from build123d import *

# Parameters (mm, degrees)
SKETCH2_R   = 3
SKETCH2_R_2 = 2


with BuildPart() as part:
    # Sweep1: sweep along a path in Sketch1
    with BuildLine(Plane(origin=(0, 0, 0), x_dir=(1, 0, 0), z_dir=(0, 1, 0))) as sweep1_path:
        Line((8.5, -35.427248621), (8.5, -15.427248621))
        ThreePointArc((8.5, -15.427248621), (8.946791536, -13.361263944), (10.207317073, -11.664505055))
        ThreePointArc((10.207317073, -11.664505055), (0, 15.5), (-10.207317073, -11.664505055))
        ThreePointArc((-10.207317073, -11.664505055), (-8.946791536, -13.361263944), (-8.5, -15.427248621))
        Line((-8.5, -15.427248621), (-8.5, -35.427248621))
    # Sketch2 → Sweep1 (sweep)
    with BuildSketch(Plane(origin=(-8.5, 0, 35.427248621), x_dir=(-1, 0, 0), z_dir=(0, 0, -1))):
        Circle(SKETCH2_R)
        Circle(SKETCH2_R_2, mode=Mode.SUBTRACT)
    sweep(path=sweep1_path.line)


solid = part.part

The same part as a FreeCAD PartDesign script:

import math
import FreeCAD as App
import Part
import Sketcher

V = App.Vector

doc = App.newDocument("Part")
body = doc.addObject("PartDesign::Body", "Body")

# Sketch on XY plane
sketch1 = body.newObject("Sketcher::SketchObject", "Sketch")
sketch1.AttachmentSupport = (doc.getObject("XY_Plane"), [""])
sketch1.MapMode = "FlatFace"
sketch1.AttachmentOffset = App.Placement(V(0, 0, 35.427249), App.Rotation())
sketch1.addGeometry(Part.Circle(V(-8.5, 0, 0), V(0, 0, 1), 3), False)
sketch1.addGeometry(Part.Circle(V(-8.5, 0, 0), V(0, 0, 1), 2), False)
sketch1.addConstraint(Sketcher.Constraint("Coincident", 1, 3, 0, 3))
sketch1.addConstraint(Sketcher.Constraint("PointOnObject", 0, 3, -1))
sketch1.addConstraint(Sketcher.Constraint("Diameter", 0, 6.0))
sketch1.addConstraint(Sketcher.Constraint("Diameter", 1, 4.0))
sketch1.addConstraint(Sketcher.Constraint("DistanceX", 0, 3, -1, 1, 8.5))

# Sketch on XZ plane
sketch2 = body.newObject("Sketcher::SketchObject", "Sketch001")
sketch2.AttachmentSupport = (doc.getObject("XZ_Plane"), [""])
sketch2.MapMode = "FlatFace"
sketch2.addGeometry(Part.LineSegment(V(8.5, 35.4, 0), V(8.5, 15.4, 0)), False)
sketch2.addGeometry(Part.ArcOfCircle(Part.Circle(V(13.5, 15.4, 0), V(0, 0, 1), 5), math.radians(180), math.radians(229)), False)
sketch2.addGeometry(Part.ArcOfCircle(Part.Circle(V(0, 0, 0), V(0, 0, 1), 15.5), math.radians(131), math.radians(409)), False)
sketch2.addGeometry(Part.ArcOfCircle(Part.Circle(V(-13.5, 15.4, 0), V(0, 0, 1), 5), math.radians(-49), math.radians(0)), False)
sketch2.addGeometry(Part.LineSegment(V(-8.5, 15.4, 0), V(-8.5, 35.4, 0)), False)
sketch2.addConstraint(Sketcher.Constraint("Tangent", 0, 2, 1, 1))
sketch2.addConstraint(Sketcher.Constraint("Tangent", 1, 2, 2, 2))
sketch2.addConstraint(Sketcher.Constraint("Tangent", 2, 1, 3, 1))
sketch2.addConstraint(Sketcher.Constraint("Tangent", 3, 2, 4, 1))
sketch2.addConstraint(Sketcher.Constraint("Vertical", 0))
sketch2.addConstraint(Sketcher.Constraint("Vertical", 4))
sketch2.addConstraint(Sketcher.Constraint("Coincident", 2, 3, -1, 1))
sketch2.addConstraint(Sketcher.Constraint("Equal", 1, 3))
sketch2.addConstraint(Sketcher.Constraint("Symmetric", 0, 1, 4, 2, -2))
sketch2.addConstraint(Sketcher.Constraint("Radius", 1, 5.0))
sketch2.addConstraint(Sketcher.Constraint("Radius", 2, 15.5))
sketch2.addConstraint(Sketcher.Constraint("DistanceY", 0, 2, 0, 1, 20.0))
sketch2.addConstraint(Sketcher.Constraint("DistanceX", 3, 3, 1, 3, 27.0))
doc.recompute()

additivepipe = body.newObject("PartDesign::AdditivePipe", "AdditivePipe")
additivepipe.Profile = sketch1
additivepipe.Spine = (sketch2, ["Edge1", "Edge2", "Edge3", "Edge4", "Edge5"])

doc.recompute()
